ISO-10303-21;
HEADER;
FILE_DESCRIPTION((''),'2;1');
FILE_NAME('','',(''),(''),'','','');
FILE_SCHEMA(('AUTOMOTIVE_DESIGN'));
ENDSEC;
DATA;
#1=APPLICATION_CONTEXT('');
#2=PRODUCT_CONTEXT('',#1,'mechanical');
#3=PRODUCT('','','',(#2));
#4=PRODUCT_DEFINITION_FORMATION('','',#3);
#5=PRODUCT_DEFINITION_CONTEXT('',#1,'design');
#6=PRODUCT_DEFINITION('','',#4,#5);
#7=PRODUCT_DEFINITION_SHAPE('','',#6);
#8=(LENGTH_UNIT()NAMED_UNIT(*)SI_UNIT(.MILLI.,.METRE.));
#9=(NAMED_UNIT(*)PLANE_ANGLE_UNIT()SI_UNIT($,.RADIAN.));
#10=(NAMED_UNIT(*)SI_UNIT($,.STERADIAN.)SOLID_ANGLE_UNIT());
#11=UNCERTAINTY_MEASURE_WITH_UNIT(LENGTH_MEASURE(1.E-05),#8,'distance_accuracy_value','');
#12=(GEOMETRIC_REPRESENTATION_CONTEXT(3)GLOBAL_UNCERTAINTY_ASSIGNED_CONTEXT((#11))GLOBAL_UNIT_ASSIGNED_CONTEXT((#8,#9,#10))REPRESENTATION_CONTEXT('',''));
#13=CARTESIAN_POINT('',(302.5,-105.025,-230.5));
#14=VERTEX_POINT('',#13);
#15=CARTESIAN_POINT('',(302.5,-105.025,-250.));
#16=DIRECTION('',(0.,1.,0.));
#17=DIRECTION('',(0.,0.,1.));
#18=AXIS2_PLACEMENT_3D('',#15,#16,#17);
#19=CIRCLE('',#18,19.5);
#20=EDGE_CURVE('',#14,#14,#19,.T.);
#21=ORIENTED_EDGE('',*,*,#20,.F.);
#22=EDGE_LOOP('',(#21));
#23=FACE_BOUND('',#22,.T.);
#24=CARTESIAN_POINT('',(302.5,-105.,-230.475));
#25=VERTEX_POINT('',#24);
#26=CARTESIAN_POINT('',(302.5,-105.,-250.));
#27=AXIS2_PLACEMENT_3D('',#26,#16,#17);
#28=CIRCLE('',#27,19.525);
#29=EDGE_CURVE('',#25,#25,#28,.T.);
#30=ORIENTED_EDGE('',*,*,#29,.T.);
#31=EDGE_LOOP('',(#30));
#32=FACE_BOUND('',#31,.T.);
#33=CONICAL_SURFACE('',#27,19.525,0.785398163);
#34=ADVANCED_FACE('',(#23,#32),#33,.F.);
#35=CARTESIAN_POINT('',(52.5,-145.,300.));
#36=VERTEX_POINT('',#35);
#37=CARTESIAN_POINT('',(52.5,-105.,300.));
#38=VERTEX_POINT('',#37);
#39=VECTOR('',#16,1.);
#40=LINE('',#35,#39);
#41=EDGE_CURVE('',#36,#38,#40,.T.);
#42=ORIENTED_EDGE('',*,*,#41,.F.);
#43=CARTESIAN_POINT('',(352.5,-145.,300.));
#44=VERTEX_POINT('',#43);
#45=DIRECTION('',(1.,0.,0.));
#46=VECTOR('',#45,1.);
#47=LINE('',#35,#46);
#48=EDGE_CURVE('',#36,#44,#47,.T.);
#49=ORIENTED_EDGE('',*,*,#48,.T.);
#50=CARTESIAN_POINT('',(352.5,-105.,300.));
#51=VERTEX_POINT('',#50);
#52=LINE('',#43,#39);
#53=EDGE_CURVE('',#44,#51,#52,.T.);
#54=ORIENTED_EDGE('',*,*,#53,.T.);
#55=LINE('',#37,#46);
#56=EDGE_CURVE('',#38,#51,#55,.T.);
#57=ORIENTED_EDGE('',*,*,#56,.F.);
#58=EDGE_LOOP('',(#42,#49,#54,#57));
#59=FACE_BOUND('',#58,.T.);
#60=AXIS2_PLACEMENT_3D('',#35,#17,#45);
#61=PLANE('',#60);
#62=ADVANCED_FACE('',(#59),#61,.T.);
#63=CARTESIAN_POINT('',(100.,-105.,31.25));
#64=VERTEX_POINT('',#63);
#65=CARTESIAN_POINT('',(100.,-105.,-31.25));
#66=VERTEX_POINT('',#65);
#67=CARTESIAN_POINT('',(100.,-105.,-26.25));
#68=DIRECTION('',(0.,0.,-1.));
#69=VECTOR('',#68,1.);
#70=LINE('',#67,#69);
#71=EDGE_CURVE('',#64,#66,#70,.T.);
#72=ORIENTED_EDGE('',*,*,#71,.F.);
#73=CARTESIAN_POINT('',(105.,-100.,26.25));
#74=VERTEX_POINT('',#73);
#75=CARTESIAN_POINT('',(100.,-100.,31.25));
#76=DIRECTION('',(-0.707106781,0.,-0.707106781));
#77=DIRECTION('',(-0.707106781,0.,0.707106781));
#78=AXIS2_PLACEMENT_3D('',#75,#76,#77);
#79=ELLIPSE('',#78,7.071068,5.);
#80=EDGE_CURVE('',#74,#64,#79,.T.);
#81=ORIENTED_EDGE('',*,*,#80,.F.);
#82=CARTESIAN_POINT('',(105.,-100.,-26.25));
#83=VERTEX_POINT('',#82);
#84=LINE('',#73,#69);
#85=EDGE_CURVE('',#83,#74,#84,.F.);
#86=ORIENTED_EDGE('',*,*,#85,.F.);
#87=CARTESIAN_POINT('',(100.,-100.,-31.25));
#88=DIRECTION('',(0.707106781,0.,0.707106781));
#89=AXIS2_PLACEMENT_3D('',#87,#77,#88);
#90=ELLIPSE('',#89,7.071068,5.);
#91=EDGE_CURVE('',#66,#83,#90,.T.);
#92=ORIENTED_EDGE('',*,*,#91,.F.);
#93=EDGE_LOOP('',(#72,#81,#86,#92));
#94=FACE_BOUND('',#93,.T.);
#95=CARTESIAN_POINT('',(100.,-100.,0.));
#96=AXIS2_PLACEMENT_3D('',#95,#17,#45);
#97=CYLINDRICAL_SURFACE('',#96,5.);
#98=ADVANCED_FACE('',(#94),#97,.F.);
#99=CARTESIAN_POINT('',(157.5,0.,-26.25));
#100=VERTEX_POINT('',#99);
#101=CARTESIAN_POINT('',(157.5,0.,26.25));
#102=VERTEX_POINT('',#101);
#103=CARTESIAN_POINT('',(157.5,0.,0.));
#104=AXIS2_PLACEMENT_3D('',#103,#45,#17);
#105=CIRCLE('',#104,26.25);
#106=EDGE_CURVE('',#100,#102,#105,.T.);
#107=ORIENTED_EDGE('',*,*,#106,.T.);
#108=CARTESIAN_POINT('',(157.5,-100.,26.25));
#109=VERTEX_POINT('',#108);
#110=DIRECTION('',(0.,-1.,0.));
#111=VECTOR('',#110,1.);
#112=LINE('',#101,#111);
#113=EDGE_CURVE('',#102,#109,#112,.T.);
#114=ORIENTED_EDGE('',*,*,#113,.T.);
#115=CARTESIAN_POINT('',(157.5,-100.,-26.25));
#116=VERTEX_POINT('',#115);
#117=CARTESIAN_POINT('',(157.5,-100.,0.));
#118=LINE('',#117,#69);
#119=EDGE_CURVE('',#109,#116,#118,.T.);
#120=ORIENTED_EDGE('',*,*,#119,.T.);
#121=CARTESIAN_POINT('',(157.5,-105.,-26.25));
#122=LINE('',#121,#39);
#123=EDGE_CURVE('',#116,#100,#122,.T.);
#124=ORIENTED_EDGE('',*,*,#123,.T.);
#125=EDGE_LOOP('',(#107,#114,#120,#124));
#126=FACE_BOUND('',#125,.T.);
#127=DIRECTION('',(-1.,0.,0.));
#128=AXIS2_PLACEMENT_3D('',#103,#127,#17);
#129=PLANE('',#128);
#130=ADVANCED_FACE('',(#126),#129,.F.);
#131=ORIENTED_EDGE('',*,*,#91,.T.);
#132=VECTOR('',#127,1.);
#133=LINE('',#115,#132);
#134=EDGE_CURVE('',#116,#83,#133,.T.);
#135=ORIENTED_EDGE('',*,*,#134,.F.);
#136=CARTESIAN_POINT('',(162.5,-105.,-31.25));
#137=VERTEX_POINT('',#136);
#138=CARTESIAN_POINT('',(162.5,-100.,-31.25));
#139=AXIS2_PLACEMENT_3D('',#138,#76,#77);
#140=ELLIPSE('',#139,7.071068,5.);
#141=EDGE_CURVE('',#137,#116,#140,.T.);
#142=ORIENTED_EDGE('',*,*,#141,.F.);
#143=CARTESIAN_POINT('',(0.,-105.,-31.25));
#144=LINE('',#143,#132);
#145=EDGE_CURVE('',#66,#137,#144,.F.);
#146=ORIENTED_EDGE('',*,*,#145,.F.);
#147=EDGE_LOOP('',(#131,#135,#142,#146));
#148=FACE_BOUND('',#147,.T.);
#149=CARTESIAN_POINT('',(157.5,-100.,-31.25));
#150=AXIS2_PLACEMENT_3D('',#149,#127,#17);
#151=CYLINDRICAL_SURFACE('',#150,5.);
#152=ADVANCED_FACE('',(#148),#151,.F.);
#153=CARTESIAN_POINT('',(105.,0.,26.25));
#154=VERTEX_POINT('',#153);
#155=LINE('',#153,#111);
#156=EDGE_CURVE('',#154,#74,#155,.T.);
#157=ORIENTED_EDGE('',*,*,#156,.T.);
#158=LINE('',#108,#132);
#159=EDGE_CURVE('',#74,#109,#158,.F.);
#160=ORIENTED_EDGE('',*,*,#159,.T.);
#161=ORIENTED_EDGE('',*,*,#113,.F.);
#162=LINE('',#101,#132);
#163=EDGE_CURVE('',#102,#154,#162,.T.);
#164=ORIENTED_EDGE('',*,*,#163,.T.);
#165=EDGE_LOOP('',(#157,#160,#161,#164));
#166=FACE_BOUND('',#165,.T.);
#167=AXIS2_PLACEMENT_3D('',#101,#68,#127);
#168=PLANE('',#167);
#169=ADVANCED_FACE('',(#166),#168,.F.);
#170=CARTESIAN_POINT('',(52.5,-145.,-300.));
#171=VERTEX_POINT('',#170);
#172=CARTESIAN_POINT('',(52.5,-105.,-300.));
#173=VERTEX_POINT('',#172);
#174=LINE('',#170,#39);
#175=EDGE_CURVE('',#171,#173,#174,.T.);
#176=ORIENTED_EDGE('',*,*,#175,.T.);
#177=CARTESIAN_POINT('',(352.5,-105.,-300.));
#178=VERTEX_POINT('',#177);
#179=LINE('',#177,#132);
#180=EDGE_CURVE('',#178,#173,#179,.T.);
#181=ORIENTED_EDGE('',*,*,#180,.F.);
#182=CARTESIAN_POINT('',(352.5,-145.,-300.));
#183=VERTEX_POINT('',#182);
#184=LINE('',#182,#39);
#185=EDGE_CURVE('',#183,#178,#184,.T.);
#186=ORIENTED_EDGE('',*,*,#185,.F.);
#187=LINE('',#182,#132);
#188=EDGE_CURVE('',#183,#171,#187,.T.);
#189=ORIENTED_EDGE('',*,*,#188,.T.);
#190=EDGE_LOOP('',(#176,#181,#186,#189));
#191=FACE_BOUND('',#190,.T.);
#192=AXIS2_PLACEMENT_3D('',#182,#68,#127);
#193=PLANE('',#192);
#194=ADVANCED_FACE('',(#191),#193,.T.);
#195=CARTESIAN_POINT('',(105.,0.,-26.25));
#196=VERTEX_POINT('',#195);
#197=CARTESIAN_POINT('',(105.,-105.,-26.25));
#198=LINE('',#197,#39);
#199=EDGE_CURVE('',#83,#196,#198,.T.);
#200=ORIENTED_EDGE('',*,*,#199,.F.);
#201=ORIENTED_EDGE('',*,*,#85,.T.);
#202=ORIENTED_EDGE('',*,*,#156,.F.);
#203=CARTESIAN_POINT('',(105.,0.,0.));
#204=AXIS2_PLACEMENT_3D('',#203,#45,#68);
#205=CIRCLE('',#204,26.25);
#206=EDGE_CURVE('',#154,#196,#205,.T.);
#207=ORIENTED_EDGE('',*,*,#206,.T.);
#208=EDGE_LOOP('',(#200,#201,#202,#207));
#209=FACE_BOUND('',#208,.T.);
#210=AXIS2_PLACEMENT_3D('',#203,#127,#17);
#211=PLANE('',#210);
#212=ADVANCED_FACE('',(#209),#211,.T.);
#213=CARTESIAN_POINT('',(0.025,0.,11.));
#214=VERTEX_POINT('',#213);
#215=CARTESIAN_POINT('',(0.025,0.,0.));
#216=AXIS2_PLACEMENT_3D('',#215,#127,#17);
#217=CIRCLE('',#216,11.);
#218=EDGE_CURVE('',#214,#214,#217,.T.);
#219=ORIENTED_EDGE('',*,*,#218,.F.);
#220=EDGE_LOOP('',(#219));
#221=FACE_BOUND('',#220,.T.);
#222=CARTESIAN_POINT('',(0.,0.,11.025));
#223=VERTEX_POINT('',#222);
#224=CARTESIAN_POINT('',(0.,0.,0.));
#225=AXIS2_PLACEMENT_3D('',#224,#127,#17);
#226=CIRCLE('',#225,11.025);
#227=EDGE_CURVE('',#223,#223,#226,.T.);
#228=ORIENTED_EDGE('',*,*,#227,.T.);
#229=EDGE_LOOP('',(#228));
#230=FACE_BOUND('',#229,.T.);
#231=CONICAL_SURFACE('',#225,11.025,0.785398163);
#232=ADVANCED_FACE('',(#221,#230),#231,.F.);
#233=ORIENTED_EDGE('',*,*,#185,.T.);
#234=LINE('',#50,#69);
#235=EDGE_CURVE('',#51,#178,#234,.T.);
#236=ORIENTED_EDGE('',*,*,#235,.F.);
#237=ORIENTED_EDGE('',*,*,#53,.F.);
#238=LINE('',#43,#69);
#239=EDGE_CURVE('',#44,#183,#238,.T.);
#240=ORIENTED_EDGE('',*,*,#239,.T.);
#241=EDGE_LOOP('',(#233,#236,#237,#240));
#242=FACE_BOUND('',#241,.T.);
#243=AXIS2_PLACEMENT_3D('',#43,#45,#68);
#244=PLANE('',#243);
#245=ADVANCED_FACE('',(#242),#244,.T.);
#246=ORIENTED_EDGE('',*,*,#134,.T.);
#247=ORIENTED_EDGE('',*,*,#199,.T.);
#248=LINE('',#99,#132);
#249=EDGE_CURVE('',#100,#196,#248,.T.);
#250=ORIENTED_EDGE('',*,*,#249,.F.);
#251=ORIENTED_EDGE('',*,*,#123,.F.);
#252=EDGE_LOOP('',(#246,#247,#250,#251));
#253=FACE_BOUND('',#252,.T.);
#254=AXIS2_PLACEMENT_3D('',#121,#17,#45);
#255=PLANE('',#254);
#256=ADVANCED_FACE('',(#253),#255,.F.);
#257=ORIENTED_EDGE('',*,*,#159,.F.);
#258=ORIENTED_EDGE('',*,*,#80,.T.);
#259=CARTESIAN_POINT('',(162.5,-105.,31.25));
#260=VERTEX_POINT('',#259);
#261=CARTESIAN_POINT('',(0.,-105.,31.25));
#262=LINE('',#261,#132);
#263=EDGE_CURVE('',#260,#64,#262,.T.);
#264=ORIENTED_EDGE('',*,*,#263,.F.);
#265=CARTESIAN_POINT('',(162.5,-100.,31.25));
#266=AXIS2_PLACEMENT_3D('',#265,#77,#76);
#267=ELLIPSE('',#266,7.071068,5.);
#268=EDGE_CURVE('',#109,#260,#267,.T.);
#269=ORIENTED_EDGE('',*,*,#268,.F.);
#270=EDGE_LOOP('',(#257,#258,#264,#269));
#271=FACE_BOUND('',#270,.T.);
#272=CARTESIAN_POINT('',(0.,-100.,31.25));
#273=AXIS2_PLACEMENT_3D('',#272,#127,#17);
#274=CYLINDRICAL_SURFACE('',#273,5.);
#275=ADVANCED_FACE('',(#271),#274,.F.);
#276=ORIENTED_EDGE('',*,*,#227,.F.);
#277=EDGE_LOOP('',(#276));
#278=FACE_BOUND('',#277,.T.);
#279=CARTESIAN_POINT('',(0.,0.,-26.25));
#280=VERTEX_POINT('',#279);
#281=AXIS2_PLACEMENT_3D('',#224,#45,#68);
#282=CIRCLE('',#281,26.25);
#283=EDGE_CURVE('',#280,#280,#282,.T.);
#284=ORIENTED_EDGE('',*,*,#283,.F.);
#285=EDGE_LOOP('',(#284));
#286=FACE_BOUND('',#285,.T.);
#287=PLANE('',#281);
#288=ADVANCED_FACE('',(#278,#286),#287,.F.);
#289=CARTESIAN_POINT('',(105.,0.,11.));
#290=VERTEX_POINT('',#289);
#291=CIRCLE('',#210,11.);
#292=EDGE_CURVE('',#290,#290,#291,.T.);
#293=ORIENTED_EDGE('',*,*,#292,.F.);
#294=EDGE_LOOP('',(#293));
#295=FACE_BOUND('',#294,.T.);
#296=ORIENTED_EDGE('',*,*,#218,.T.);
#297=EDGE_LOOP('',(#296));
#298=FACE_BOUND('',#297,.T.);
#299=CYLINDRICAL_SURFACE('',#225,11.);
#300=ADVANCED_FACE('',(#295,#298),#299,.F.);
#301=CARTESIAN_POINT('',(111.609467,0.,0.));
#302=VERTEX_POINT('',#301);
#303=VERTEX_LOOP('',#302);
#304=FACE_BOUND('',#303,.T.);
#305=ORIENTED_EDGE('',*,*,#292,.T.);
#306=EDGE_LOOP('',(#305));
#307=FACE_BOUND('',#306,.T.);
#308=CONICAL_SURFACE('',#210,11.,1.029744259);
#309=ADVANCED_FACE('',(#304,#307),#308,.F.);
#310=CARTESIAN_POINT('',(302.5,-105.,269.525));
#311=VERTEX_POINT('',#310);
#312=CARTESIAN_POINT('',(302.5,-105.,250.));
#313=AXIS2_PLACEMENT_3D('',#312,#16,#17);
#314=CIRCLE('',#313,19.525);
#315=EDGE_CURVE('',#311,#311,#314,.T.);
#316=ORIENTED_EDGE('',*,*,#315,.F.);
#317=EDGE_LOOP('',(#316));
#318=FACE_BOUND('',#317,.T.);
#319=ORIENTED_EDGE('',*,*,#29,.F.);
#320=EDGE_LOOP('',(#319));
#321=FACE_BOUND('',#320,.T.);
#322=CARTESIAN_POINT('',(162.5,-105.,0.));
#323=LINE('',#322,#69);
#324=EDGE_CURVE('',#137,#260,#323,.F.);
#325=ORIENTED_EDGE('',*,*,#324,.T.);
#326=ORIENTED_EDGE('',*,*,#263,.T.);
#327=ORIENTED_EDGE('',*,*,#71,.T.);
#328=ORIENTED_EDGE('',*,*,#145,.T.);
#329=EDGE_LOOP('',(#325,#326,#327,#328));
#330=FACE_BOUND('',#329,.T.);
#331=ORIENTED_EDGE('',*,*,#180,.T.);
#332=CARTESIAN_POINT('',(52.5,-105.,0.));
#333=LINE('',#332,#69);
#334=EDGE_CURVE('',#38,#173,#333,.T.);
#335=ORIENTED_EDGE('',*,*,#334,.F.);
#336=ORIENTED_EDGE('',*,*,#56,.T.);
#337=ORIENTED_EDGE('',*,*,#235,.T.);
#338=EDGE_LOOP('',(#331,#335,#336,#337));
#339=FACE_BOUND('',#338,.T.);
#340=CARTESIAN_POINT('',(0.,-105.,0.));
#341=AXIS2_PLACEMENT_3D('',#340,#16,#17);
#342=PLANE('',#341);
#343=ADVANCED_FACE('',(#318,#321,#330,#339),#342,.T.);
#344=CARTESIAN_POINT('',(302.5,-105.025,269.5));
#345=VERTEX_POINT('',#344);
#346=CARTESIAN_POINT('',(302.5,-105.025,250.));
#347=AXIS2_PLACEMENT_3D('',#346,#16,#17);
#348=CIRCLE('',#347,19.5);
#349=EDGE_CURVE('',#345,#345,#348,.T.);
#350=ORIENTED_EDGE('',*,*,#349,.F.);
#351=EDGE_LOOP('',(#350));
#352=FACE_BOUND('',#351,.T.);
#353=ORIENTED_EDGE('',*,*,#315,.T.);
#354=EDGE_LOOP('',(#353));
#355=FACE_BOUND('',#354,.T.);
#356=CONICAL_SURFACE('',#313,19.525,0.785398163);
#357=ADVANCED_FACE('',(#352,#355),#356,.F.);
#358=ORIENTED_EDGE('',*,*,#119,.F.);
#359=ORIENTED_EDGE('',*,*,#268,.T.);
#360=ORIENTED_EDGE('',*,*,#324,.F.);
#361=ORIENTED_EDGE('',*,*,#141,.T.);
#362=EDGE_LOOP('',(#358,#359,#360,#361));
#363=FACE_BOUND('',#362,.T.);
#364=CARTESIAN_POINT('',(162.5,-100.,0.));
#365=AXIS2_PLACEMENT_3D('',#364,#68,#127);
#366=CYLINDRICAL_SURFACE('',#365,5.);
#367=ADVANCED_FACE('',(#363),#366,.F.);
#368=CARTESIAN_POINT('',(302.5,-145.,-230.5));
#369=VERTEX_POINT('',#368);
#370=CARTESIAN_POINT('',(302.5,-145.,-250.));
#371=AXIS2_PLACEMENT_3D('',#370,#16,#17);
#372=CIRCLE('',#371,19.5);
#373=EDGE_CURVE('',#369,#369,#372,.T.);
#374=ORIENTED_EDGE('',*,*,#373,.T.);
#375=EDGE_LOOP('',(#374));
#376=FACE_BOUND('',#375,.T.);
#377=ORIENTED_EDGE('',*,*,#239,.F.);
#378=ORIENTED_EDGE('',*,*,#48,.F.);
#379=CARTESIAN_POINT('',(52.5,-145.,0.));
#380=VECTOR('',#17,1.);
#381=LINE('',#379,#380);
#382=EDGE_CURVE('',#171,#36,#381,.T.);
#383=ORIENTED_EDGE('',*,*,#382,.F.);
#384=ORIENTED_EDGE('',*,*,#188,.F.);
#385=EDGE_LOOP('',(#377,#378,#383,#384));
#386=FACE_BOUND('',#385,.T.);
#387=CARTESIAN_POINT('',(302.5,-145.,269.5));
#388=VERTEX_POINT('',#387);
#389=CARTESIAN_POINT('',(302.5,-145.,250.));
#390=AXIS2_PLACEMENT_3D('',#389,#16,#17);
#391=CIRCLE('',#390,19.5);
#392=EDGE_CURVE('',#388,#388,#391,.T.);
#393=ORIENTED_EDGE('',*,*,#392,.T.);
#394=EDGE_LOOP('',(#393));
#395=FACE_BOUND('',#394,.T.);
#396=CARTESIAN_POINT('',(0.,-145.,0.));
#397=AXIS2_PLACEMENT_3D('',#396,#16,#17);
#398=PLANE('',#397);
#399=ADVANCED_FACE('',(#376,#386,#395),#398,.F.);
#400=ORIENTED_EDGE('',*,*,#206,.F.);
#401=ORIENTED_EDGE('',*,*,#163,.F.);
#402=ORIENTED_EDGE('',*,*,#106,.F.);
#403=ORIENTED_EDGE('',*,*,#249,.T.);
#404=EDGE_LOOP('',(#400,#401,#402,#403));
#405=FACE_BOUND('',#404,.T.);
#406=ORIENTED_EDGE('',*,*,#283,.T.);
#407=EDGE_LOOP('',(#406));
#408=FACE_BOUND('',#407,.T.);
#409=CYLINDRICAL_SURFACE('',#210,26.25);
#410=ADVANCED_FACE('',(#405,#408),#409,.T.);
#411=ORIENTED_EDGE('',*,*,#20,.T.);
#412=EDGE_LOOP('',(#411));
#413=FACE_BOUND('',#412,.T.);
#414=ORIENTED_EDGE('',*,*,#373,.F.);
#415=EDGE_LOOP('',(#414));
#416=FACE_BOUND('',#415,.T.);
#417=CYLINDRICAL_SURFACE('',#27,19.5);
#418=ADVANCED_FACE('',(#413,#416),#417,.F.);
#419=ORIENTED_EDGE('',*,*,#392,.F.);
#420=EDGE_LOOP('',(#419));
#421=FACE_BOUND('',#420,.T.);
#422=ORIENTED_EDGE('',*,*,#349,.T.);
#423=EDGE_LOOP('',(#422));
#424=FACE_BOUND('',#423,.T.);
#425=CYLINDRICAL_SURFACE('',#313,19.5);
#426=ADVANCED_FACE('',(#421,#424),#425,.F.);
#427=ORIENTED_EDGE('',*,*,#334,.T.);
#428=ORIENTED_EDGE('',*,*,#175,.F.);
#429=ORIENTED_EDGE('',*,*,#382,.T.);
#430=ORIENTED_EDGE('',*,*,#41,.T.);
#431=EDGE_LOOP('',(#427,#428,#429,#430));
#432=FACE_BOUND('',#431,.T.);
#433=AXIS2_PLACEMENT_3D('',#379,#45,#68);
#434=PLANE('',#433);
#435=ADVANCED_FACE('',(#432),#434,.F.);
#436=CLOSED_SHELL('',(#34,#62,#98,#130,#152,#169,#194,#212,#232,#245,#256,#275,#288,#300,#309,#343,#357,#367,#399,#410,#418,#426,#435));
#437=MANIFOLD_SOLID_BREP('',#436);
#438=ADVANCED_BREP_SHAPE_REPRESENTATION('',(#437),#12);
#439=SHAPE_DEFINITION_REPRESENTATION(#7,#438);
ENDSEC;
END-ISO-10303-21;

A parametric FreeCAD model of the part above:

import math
import FreeCAD as App
import Part
import Sketcher

V = App.Vector
Q = App.Units.Quantity


def edges_at(feature, points):
    """Names of the edges that pass closest to the given points."""
    edges = feature.Shape.Edges
    near = lambda p: min(range(len(edges)), key=lambda i: edges[i].distToShape(Part.Vertex(*p))[0])
    return sorted({f"Edge{near(p) + 1}" for p in points})


def add_polygon(sketch, points):
    """Adds a closed chain of lines whose ends are joined by coincident constraints."""
    first, n = sketch.GeometryCount, len(points)
    for a, b in zip(points, points[1:] + points[:1]):
        sketch.addGeometry(Part.LineSegment(App.Vector(*a, 0), App.Vector(*b, 0)), False)
    for i in range(n):
        sketch.addConstraint(Sketcher.Constraint("Coincident", first + i, 2, first + (i + 1) % n, 1))

doc = App.newDocument("Part")
body = doc.addObject("PartDesign::Body", "Body")

# Sketch on YZ plane
sketch1 = body.newObject("Sketcher::SketchObject", "Sketch")
sketch1.AttachmentSupport = (doc.getObject("YZ_Plane"), [""])
sketch1.MapMode = "FlatFace"
sketch1.addGeometry(Part.Circle(V(0, 0, 0), V(0, 0, 1), 26), False)
sketch1.addConstraint([
    Sketcher.Constraint("Coincident", 0, 3, -1, 1),
    Sketcher.Constraint("Diameter", 0, Q("52.5 mm")),
])
pad1 = body.newObject("PartDesign::Pad", "Pad")
pad1.Profile = sketch1
pad1.Length = 105

# Sketch on YZ plane
sketch2 = body.newObject("Sketcher::SketchObject", "Sketch001")
sketch2.AttachmentSupport = (doc.getObject("YZ_Plane"), [""])
sketch2.MapMode = "FlatFace"
sketch2.AttachmentOffset = App.Placement(V(0, 0, 105), App.Rotation())
sketch2.addGeometry([
    Part.LineSegment(V(0, 26, 0), V(-105, 26, 0)),
    Part.LineSegment(V(-105, 26, 0), V(-105, -26, 0)),
    Part.LineSegment(V(-105, -26, 0), V(0, -26, 0)),
    Part.ArcOfCircle(Part.Circle(V(0, 0, 0), V(0, 0, 1), 26), math.radians(-90), math.radians(90)),
], False)
sketch2.addConstraint([
    Sketcher.Constraint("Coincident", 0, 2, 1, 1),
    Sketcher.Constraint("Coincident", 1, 2, 2, 1),
    Sketcher.Constraint("Tangent", 2, 2, 3, 1),
    Sketcher.Constraint("Tangent", 3, 2, 0, 1),
    Sketcher.Constraint("Horizontal", 0),
    Sketcher.Constraint("Vertical", 1),
    Sketcher.Constraint("Horizontal", 2),
    Sketcher.Constraint("Coincident", 3, 3, -1, 1),
    Sketcher.Constraint("DistanceX", 0, 2, 0, 1, Q("105 mm")),
    Sketcher.Constraint("Radius", 3, Q("26.25 mm")),
])
pad2 = body.newObject("PartDesign::Pad", "Pad001")
pad2.Profile = sketch2
pad2.Length = 52.5

# Sketch on YZ plane
sketch3 = body.newObject("Sketcher::SketchObject", "Sketch002")
sketch3.AttachmentSupport = (doc.getObject("YZ_Plane"), [""])
sketch3.MapMode = "FlatFace"
sketch3.addGeometry(Part.Circle(V(0, 0, 0), V(0, 0, 1), 11), False)
sketch3.addConstraint([
    Sketcher.Constraint("Coincident", 0, 3, -1, 1),
    Sketcher.Constraint("Diameter", 0, Q("22 mm")),
])
doc.recompute()
hole = body.newObject("PartDesign::Hole", "Hole")
hole.Profile = sketch3
hole.ThreadType = "None"
hole.Diameter = 22
hole.DepthType = "Dimension"
hole.Depth = 105
hole.DrillPoint = "Angled"
hole.DrillPointAngle = 118
hole.HoleCutType = "Countersink"
hole.HoleCutDiameter = 22.05
hole.HoleCutCountersinkAngle = 90
hole.Reversed = True

# Sketch on XZ plane
sketch4 = body.newObject("Sketcher::SketchObject", "Sketch003")
sketch4.AttachmentSupport = (doc.getObject("XZ_Plane"), [""])
sketch4.MapMode = "FlatFace"
sketch4.AttachmentOffset = App.Placement(V(0, 0, 105), App.Rotation())
add_polygon(sketch4, [(352, 300), (52, 300), (52, -300), (352, -300)])  # lines 0-3
sketch4.addConstraint([
    Sketcher.Constraint("Horizontal", 0),
    Sketcher.Constraint("Vertical", 1),
    Sketcher.Constraint("Horizontal", 2),
    Sketcher.Constraint("Vertical", 3),
    Sketcher.Constraint("DistanceX", 0, 2, 0, 1, Q("300 mm")),
    Sketcher.Constraint("DistanceY", 1, 2, 1, 1, Q("600 mm")),
    Sketcher.Constraint("DistanceY", -1, 1, 0, 2, Q("300 mm")),
    Sketcher.Constraint("DistanceX", -1, 1, 0, 2, Q("52.5 mm")),
])
pad3 = body.newObject("PartDesign::Pad", "Pad002")
pad3.Profile = sketch4
pad3.Length = 40
doc.recompute()

fillet = body.newObject("PartDesign::Fillet", "Fillet")
fillet.Base = (pad3, edges_at(pad3, [
    (105, -105, 0),
    (131.25, -105, 26.25),
    (131.25, -105, -26.25),
    (157.5, -105, 0),
]))
fillet.Radius = 5

# Sketch on XZ plane
sketch5 = body.newObject("Sketcher::SketchObject", "Sketch004")
sketch5.AttachmentSupport = (doc.getObject("XZ_Plane"), [""])
sketch5.MapMode = "FlatFace"
sketch5.AttachmentOffset = App.Placement(V(0, 0, 105), App.Rotation())
sketch5.addGeometry([
    Part.Circle(V(302, 250, 0), V(0, 0, 1), 20),
    Part.Circle(V(302, -250, 0), V(0, 0, 1), 20),
], False)
sketch5.addConstraint([
    Sketcher.Constraint("Equal", 0, 1),
    Sketcher.Constraint("Symmetric", 0, 3, 1, 3, -1),
    Sketcher.Constraint("Diameter", 0, Q("39 mm")),
    Sketcher.Constraint("DistanceY", -1, 1, 0, 3, Q("250 mm")),
    Sketcher.Constraint("DistanceX", -1, 1, 0, 3, Q("302.5 mm")),
])
doc.recompute()
hole2 = body.newObject("PartDesign::Hole", "Hole001")
hole2.Profile = sketch5
hole2.ThreadType = "None"
hole2.Diameter = 39
hole2.DepthType = "ThroughAll"
hole2.HoleCutType = "Countersink"
hole2.HoleCutDiameter = 39.05
hole2.HoleCutCountersinkAngle = 90
hole2.Reversed = True

doc.recompute()
